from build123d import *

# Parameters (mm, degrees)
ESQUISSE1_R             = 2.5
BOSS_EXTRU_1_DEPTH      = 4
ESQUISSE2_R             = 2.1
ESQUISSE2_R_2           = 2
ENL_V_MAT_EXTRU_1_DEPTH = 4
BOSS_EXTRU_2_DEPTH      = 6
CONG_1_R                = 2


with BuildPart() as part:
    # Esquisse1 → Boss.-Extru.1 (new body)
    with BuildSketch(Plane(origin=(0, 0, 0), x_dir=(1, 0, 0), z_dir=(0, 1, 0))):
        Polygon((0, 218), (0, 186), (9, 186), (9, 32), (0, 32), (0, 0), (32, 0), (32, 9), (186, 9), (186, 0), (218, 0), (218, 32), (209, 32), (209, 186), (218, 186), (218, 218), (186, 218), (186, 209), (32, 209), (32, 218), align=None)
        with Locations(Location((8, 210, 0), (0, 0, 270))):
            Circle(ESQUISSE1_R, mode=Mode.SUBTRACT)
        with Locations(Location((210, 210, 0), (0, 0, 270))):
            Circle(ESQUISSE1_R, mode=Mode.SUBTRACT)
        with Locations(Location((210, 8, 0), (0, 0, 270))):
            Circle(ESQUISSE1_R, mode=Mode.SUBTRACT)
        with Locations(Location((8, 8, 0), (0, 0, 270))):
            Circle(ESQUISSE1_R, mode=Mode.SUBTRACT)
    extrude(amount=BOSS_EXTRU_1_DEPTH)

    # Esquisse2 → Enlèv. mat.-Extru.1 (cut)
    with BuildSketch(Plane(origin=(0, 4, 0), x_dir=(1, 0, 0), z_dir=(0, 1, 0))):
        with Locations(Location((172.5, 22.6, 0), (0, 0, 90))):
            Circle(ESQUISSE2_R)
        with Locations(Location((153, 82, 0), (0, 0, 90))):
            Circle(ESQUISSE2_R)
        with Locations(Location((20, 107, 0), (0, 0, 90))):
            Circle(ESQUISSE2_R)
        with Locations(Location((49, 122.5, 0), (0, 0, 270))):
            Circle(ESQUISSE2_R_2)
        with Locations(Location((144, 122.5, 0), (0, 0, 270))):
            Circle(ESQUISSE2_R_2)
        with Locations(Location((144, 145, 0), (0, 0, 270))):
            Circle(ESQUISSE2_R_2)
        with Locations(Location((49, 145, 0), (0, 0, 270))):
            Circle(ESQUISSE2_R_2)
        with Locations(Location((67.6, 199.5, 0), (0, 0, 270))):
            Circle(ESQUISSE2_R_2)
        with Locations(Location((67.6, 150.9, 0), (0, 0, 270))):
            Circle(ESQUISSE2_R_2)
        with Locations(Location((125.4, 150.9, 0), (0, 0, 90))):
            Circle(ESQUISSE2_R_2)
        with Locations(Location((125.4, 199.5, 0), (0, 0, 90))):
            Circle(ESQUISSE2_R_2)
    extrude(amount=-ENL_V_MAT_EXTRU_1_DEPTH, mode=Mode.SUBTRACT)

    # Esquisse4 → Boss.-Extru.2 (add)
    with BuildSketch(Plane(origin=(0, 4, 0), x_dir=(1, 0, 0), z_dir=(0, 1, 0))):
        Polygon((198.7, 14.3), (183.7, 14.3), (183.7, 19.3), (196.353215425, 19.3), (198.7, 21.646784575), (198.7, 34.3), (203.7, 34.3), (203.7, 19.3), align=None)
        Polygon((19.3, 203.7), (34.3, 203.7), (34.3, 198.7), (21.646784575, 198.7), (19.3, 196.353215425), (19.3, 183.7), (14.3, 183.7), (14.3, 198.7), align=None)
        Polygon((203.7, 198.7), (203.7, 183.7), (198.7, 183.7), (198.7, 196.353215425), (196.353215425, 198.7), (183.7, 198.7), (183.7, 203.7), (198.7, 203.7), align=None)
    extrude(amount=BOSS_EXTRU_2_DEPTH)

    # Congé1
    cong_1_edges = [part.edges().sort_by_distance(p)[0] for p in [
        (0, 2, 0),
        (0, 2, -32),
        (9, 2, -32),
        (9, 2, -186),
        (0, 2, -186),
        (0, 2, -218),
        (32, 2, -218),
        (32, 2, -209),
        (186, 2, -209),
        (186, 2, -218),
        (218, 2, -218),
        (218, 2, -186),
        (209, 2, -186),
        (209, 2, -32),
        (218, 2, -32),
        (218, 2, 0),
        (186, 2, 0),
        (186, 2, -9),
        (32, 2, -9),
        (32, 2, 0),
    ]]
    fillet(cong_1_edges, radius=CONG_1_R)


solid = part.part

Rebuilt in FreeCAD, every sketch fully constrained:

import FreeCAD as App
import Part
import Sketcher
from FreeCAD import Vector
Q = App.Units.Quantity


def edges_at(feature, points):
    """Names of the edges that pass closest to the given points."""
    edges = feature.Shape.Edges
    near = lambda p: min(range(len(edges)), key=lambda i: edges[i].distToShape(Part.Vertex(*p))[0])
    return sorted({f"Edge{near(p) + 1}" for p in points})


def add_polygon(sketch, points):
    """Adds a closed chain of lines whose ends are joined by coincident constraints."""
    first, n = sketch.GeometryCount, len(points)
    for a, b in zip(points, points[1:] + points[:1]):
        sketch.addGeometry(Part.LineSegment(App.Vector(*a, 0), App.Vector(*b, 0)), False)
    for i in range(n):
        sketch.addConstraint(Sketcher.Constraint("Coincident", first + i, 2, first + (i + 1) % n, 1))

doc = App.newDocument("Part")
body = doc.addObject("PartDesign::Body", "Body")

# Sketch on XZ plane
sketch1 = body.newObject("Sketcher::SketchObject", "Sketch")
sketch1.AttachmentSupport = (doc.getObject("XZ_Plane"), [""])
sketch1.MapMode = "FlatFace"
add_polygon(sketch1, [(0, -218), (0, -186), (9, -186), (9, -32), (0, -32), (0, 0), (32, 0), (32, -9), (186, -9), (186, 0), (218, 0), (218, -32), (209, -32), (209, -186), (218, -186), (218, -218), (186, -218), (186, -209), (32, -209), (32, -218)])  # lines 0-19
sketch1.addGeometry(Part.Circle(Vector(8, -8, 0), Vector(0, 0, 1), 2.5), False)  # 20
sketch1.addGeometry(Part.Circle(Vector(210, -8, 0), Vector(0, 0, 1), 2.5), False)  # 21
sketch1.addGeometry(Part.Circle(Vector(8, -210, 0), Vector(0, 0, 1), 2.5), False)  # 22
sketch1.addGeometry(Part.Circle(Vector(210, -210, 0), Vector(0, 0, 1), 2.5), False)  # 23
sketch1.addConstraint([
    Sketcher.Constraint("Vertical", 0),
    Sketcher.Constraint("Horizontal", 1),
    Sketcher.Constraint("Vertical", 2),
    Sketcher.Constraint("Horizontal", 3),
    Sketcher.Constraint("Vertical", 4),
    Sketcher.Constraint("Horizontal", 5),
    Sketcher.Constraint("Vertical", 6),
    Sketcher.Constraint("Horizontal", 7),
    Sketcher.Constraint("Vertical", 8),
    Sketcher.Constraint("Horizontal", 9),
    Sketcher.Constraint("Vertical", 10),
    Sketcher.Constraint("Horizontal", 11),
    Sketcher.Constraint("Vertical", 12),
    Sketcher.Constraint("Horizontal", 13),
    Sketcher.Constraint("Vertical", 14),
    Sketcher.Constraint("Horizontal", 15),
    Sketcher.Constraint("Vertical", 16),
    Sketcher.Constraint("Horizontal", 17),
    Sketcher.Constraint("Vertical", 18),
    Sketcher.Constraint("Horizontal", 19),
    Sketcher.Constraint("Coincident", 4, 2, -1, 1),
    Sketcher.Constraint("Equal", 20, 21),
    Sketcher.Constraint("Equal", 21, 22),
    Sketcher.Constraint("Equal", 22, 23),
    Sketcher.Constraint("PointOnObject", 0, 2, -2),
    Sketcher.Constraint("PointOnObject", 8, 2, -1),
    Sketcher.Constraint("Horizontal", 20, 3, 21, 3),
    Sketcher.Constraint("Horizontal", 22, 3, 23, 3),
    Sketcher.Constraint("Horizontal", 3, 2, 10, 2),
    Sketcher.Constraint("Horizontal", 1, 2, 12, 2),
    Sketcher.Constraint("Horizontal", 15, 2, 18, 2),
    Sketcher.Constraint("Vertical", 20, 3, 22, 3),
    Sketcher.Constraint("Vertical", 21, 3, 23, 3),
    Sketcher.Constraint("Vertical", 10, 2, 13, 2),
    Sketcher.Constraint("Vertical", 8, 2, 15, 2),
    Sketcher.Constraint("Vertical", 6, 2, 17, 2),
    Sketcher.Constraint("Equal", 5, 9),
    Sketcher.Constraint("Equal", 3, 11),
    Sketcher.Constraint("Equal", 19, 0),
    Sketcher.Constraint("Equal", 17, 2),
    Sketcher.Constraint("Equal", 0, 4),
    Sketcher.Constraint("Equal", 13, 6),
    Sketcher.Constraint("Equal", 8, 16),
    Sketcher.Constraint("Diameter", 20, Q("5 mm")),
    Sketcher.Constraint("DistanceX", 1, 1, 1, 2, Q("9 mm")),
    Sketcher.Constraint("DistanceX", 5, 1, 5, 2, Q("32 mm")),
    Sketcher.Constraint("DistanceX", 7, 1, 7, 2, Q("154 mm")),
    Sketcher.Constraint("DistanceX", -1, 1, 20, 3, Q("8 mm")),
    Sketcher.Constraint("DistanceY", 20, 3, -1, 1, Q("8 mm")),
    Sketcher.Constraint("DistanceX", -1, 1, 21, 3, Q("210 mm")),
    Sketcher.Constraint("DistanceY", 22, 3, -1, 1, Q("210 mm")),
])
pad1 = body.newObject("PartDesign::Pad", "Pad")
pad1.Profile = sketch1
pad1.Length = 4
pad1.Reversed = True

# Sketch on XZ plane
sketch2 = body.newObject("Sketcher::SketchObject", "Sketch001")
sketch2.AttachmentSupport = (doc.getObject("XZ_Plane"), [""])
sketch2.MapMode = "FlatFace"
sketch2.AttachmentOffset = App.Placement(Vector(0, 0, -4), App.Rotation())
sketch2.addGeometry([
    Part.Circle(Vector(172.5, -22.6, 0), Vector(0, 0, 1), 2.1),  # 0
    Part.Circle(Vector(153, -82, 0), Vector(0, 0, 1), 2.1),  # 1
    Part.Circle(Vector(20, -107, 0), Vector(0, 0, 1), 2.1),  # 2
    Part.Circle(Vector(49, -122.5, 0), Vector(0, 0, 1), 2),  # 3
    Part.Circle(Vector(144, -122.5, 0), Vector(0, 0, 1), 2),  # 4
    Part.Circle(Vector(144, -145, 0), Vector(0, 0, 1), 2),  # 5
    Part.Circle(Vector(49, -145, 0), Vector(0, 0, 1), 2),  # 6
    Part.Circle(Vector(67.6, -199.5, 0), Vector(0, 0, 1), 2),  # 7
    Part.Circle(Vector(67.6, -150.9, 0), Vector(0, 0, 1), 2),  # 8
    Part.Circle(Vector(125.4, -150.9, 0), Vector(0, 0, 1), 2),  # 9
    Part.Circle(Vector(125.4, -199.5, 0), Vector(0, 0, 1), 2),  # 10
], False)
sketch2.addConstraint([
    Sketcher.Constraint("Equal", 0, 1),
    Sketcher.Constraint("Equal", 1, 2),
    Sketcher.Constraint("Equal", 3, 4),
    Sketcher.Constraint("Equal", 4, 5),
    Sketcher.Constraint("Equal", 5, 6),
    Sketcher.Constraint("Equal", 6, 7),
    Sketcher.Constraint("Equal", 7, 8),
    Sketcher.Constraint("Equal", 8, 9),
    Sketcher.Constraint("Equal", 9, 10),
    Sketcher.Constraint("Horizontal", 3, 3, 4, 3),
    Sketcher.Constraint("Horizontal", 5, 3, 6, 3),
    Sketcher.Constraint("Horizontal", 8, 3, 9, 3),
    Sketcher.Constraint("Horizontal", 7, 3, 10, 3),
    Sketcher.Constraint("Vertical", 4, 3, 5, 3),
    Sketcher.Constraint("Vertical", 3, 3, 6, 3),
    Sketcher.Constraint("Vertical", 7, 3, 8, 3),
    Sketcher.Constraint("Vertical", 9, 3, 10, 3),
    Sketcher.Constraint("Diameter", 3, Q("4 mm")),
    Sketcher.Constraint("Diameter", 0, Q("4.2 mm")),
    Sketcher.Constraint("DistanceX", -1, 1, 1, 3, Q("153 mm")),
    Sketcher.Constraint("DistanceY", 1, 3, -1, 1, Q("82 mm")),
    Sketcher.Constraint("DistanceX", -1, 1, 2, 3, Q("20 mm")),
    Sketcher.Constraint("DistanceY", 2, 3, -1, 1, Q("107 mm")),
    Sketcher.Constraint("DistanceX", -1, 1, 3, 3, Q("49 mm")),
    Sketcher.Constraint("DistanceX", -1, 1, 4, 3, Q("144 mm")),
    Sketcher.Constraint("DistanceY", 5, 3, -1, 1, Q("145 mm")),
    Sketcher.Constraint("DistanceY", 7, 3, 3, 3, Q("77 mm")),
    Sketcher.Constraint("DistanceX", -1, 1, 0, 3, Q("172.5 mm")),
    Sketcher.Constraint("DistanceY", 0, 3, -1, 1, Q("22.6 mm")),
    Sketcher.Constraint("DistanceY", 3, 3, -1, 1, Q("122.5 mm")),
    Sketcher.Constraint("DistanceX", -1, 1, 7, 3, Q("67.6 mm")),
    Sketcher.Constraint("DistanceY", 8, 3, -1, 1, Q("150.9 mm")),
    Sketcher.Constraint("DistanceX", -1, 1, 9, 3, Q("125.4 mm")),
])
pocket1 = body.newObject("PartDesign::Pocket", "Pocket")
pocket1.Profile = sketch2
pocket1.Length = 4
pocket1.Reversed = True

# Sketch on XZ plane
sketch3 = body.newObject("Sketcher::SketchObject", "Sketch002")
sketch3.AttachmentSupport = (doc.getObject("XZ_Plane"), [""])
sketch3.MapMode = "FlatFace"
sketch3.AttachmentOffset = App.Placement(Vector(0, 0, -4), App.Rotation())
add_polygon(sketch3, [(183.7, -14.3), (198.7, -14.3), (203.7, -19.3), (203.7, -34.3), (198.7, -34.3), (198.7, -21.646785), (196.353215, -19.3), (183.7, -19.3)])  # lines 0-7
add_polygon(sketch3, [(34.3, -203.7), (19.3, -203.7), (14.3, -198.7), (14.3, -183.7), (19.3, -183.7), (19.3, -196.353215), (21.646785, -198.7), (34.3, -198.7)])  # lines 8-15
add_polygon(sketch3, [(203.7, -183.7), (203.7, -198.7), (198.7, -203.7), (183.7, -203.7), (183.7, -198.7), (196.353215, -198.7), (198.7, -196.353215), (198.7, -183.7)])  # lines 16-23
sketch3.addConstraint([
    Sketcher.Constraint("Horizontal", 0),
    Sketcher.Constraint("Vertical", 2),
    Sketcher.Constraint("Horizontal", 3),
    Sketcher.Constraint("Vertical", 4),
    Sketcher.Constraint("Horizontal", 6),
    Sketcher.Constraint("Vertical", 7),
    Sketcher.Constraint("Horizontal", 8),
    Sketcher.Constraint("Vertical", 10),
    Sketcher.Constraint("Horizontal", 11),
    Sketcher.Constraint("Vertical", 12),
    Sketcher.Constraint("Horizontal", 14),
    Sketcher.Constraint("Vertical", 15),
    Sketcher.Constraint("Vertical", 16),
    Sketcher.Constraint("Horizontal", 18),
    Sketcher.Constraint("Vertical", 19),
    Sketcher.Constraint("Horizontal", 20),
    Sketcher.Constraint("Vertical", 22),
    Sketcher.Constraint("Horizontal", 23),
    Sketcher.Constraint("Parallel", 1, 5),
    Sketcher.Constraint("Parallel", 5, 9),
    Sketcher.Constraint("Parallel", 9, 13),
    Sketcher.Constraint("Perpendicular", 13, 17),
    Sketcher.Constraint("Parallel", 17, 21),
    Sketcher.Constraint("Horizontal", 1, 2, 5, 2),
    Sketcher.Constraint("Horizontal", 9, 2, 13, 2),
    Sketcher.Constraint("Horizontal", 14, 2, 16, 2),
    Sketcher.Constraint("Horizontal", 15, 2, 17, 2),
    Sketcher.Constraint("Horizontal", 16, 2, 19, 2),
    Sketcher.Constraint("Horizontal", 12, 2, 21, 2),
    Sketcher.Constraint("Horizontal", 11, 2, 22, 2),
    Sketcher.Constraint("Vertical", 0, 2, 3, 2),
    Sketcher.Constraint("Vertical", 8, 2, 11, 2),
    Sketcher.Constraint("Vertical", 2, 2, 16, 2),
    Sketcher.Constraint("Vertical", 4, 2, 17, 2),
    Sketcher.Constraint("Vertical", 7, 2, 18, 2),
    Sketcher.Constraint("Vertical", 5, 2, 20, 2),
    Sketcher.Constraint("Vertical", 17, 2, 21, 2),
    Sketcher.Constraint("Equal", 0, 8),
    Sketcher.Constraint("Equal", 3, 11),
    Sketcher.Constraint("Equal", 18, 2),
    Sketcher.Constraint("Equal", 2, 10),
    Sketcher.Constraint("DistanceX", 0, 1, 0, 2, Q("15 mm")),
    Sketcher.Constraint("DistanceX", 3, 2, 3, 1, Q("5 mm")),
    Sketcher.Constraint("DistanceX", -1, 1, 0, 2, Q("198.7 mm")),
    Sketcher.Constraint("DistanceY", 0, 2, -1, 1, Q("14.3 mm")),
    Sketcher.Constraint("DistanceX", -1, 1, 8, 2, Q("19.3 mm")),
    Sketcher.Constraint("DistanceY", 8, 2, -1, 1, Q("203.7 mm")),
    Sketcher.Constraint("DistanceX", 6, 2, 6, 1, Q("12.653215 mm")),
])
pad2 = body.newObject("PartDesign::Pad", "Pad001")
pad2.Profile = sketch3
pad2.Length = 6
pad2.Reversed = True
doc.recompute()

fillet = body.newObject("PartDesign::Fillet", "Fillet")
fillet.Base = (pad2, edges_at(pad2, [
    (0, 2, 0),
    (0, 2, -32),
    (9, 2, -32),
    (9, 2, -186),
    (0, 2, -186),
    (0, 2, -218),
    (32, 2, -218),
    (32, 2, -209),
    (186, 2, -209),
    (186, 2, -218),
    (218, 2, -218),
    (218, 2, -186),
    (209, 2, -186),
    (209, 2, -32),
    (218, 2, -32),
    (218, 2, 0),
    (186, 2, 0),
    (186, 2, -9),
    (32, 2, -9),
    (32, 2, 0),
]))
fillet.Radius = 2

doc.recompute()
